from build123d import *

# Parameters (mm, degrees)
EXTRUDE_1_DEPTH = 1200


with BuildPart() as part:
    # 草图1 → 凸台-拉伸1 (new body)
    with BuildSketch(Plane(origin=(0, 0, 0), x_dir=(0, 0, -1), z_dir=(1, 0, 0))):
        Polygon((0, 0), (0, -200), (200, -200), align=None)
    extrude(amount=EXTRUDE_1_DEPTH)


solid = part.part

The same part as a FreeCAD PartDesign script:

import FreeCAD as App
import Part
import Sketcher
from FreeCAD import Vector
Q = App.Units.Quantity


def add_polygon(sketch, points):
    """Adds a closed chain of lines whose ends are joined by coincident constraints."""
    first, n = sketch.GeometryCount, len(points)
    for a, b in zip(points, points[1:] + points[:1]):
        sketch.addGeometry(Part.LineSegment(App.Vector(*a, 0), App.Vector(*b, 0)), False)
    for i in range(n):
        sketch.addConstraint(Sketcher.Constraint("Coincident", first + i, 2, first + (i + 1) % n, 1))

doc = App.newDocument("Part")
body = doc.addObject("PartDesign::Body", "Body")

sketch1 = body.newObject("Sketcher::SketchObject", "Sketch")
sketch1.AttachmentSupport = (doc.getObject("YZ_Plane"), [""])
sketch1.MapMode = "FlatFace"
add_polygon(sketch1, [(0, 0), (-200, 0), (-200, -200)])
sketch1.addConstraint(Sketcher.Constraint("Horizontal", 0))
sketch1.addConstraint(Sketcher.Constraint("Vertical", 1))
sketch1.addConstraint(Sketcher.Constraint("Coincident", 2, 2, -1, 1))
sketch1.addConstraint(Sketcher.Constraint("Equal", 0, 1))
sketch1.addConstraint(Sketcher.Constraint("DistanceX", 0, 2, 0, 1, Q("200 mm")))
pad1 = body.newObject("PartDesign::Pad", "Pad")
pad1.Profile = sketch1
pad1.Length = 1200

doc.recompute()
